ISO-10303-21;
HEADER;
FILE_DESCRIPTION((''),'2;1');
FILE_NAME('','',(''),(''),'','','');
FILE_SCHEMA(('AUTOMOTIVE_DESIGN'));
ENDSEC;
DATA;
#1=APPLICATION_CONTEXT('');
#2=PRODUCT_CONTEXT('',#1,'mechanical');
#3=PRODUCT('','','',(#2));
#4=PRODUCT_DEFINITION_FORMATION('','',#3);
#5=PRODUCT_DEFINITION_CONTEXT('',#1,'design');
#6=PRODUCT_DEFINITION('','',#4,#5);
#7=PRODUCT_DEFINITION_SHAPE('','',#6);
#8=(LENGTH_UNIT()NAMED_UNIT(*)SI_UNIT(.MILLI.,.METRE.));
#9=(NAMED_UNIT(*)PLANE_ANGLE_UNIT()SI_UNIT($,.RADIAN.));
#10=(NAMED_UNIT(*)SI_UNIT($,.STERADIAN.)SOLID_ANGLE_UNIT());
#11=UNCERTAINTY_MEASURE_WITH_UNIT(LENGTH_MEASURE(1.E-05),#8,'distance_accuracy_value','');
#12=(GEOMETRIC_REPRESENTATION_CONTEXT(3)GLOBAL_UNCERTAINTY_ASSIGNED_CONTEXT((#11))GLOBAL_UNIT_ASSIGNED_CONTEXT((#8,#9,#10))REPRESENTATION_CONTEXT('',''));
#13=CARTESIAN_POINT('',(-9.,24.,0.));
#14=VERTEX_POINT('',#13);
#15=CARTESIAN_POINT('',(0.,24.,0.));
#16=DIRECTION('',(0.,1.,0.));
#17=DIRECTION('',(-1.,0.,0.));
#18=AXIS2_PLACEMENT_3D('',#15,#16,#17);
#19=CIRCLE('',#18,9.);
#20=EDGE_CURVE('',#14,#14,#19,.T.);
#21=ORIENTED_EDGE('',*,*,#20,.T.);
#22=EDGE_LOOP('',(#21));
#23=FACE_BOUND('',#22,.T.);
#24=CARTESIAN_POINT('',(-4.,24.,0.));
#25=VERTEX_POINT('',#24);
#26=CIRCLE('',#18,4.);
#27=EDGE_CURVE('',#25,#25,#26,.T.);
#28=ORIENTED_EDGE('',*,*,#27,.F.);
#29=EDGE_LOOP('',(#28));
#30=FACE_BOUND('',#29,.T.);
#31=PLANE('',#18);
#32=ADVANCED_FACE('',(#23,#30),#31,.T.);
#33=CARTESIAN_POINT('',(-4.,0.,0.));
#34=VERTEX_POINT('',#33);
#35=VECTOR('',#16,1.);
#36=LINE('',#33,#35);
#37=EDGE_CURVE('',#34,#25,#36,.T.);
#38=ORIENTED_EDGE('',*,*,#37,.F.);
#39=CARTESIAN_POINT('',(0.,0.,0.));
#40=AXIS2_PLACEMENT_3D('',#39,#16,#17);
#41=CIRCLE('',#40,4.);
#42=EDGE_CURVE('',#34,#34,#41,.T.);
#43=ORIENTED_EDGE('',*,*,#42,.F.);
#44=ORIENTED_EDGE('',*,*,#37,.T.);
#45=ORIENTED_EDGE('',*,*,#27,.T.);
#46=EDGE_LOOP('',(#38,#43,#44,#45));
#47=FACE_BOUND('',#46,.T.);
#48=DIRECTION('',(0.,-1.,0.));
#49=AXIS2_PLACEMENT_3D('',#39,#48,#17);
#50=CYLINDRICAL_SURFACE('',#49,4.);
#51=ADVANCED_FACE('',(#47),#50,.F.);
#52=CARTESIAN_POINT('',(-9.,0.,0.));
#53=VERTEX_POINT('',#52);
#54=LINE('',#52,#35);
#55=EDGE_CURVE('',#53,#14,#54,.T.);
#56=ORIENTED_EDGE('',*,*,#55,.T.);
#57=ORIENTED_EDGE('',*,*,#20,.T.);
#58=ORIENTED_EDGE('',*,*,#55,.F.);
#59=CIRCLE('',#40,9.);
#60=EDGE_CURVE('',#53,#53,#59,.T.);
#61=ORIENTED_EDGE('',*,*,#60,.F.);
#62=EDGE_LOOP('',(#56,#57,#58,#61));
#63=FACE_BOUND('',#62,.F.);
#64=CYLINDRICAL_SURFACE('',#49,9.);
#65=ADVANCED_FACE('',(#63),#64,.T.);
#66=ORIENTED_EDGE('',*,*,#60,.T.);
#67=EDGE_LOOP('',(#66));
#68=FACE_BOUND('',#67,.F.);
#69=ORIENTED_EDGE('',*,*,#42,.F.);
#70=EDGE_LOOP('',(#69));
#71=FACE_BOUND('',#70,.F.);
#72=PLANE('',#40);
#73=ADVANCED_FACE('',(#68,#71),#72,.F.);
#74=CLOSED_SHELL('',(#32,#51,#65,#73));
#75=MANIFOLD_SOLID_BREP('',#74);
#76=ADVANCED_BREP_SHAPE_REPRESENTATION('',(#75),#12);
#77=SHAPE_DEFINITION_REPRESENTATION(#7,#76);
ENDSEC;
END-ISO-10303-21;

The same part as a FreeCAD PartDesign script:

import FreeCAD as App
import Part
import Sketcher

V = App.Vector
Q = App.Units.Quantity

doc = App.newDocument("Part")
params = doc.addObject("Spreadsheet::Sheet", "Params")
for row, (alias, value) in enumerate([
    ("sketch1_diameter", "18 mm"),
    ("sketch1_diameter2", "8 mm"),
    ("pad1_length", "24 mm"),
], start=1):
    params.set(f"A{row}", alias)
    params.set(f"B{row}", "=" + value)
    params.setAlias(f"B{row}", alias)

body = doc.addObject("PartDesign::Body", "Body")

# Sketch on XZ plane
sketch1 = body.newObject("Sketcher::SketchObject", "Sketch")
sketch1.AttachmentSupport = (doc.getObject("XZ_Plane"), [""])
sketch1.MapMode = "FlatFace"
sketch1.addGeometry(Part.Circle(V(0, 0, 0), V(0, 0, 1), 9), False)
sketch1.addGeometry(Part.Circle(V(0, 0, 0), V(0, 0, 1), 4), False)
sketch1.addConstraint(Sketcher.Constraint("Coincident", 0, 3, -1, 1))
sketch1.addConstraint(Sketcher.Constraint("Coincident", 1, 3, -1, 1))
sketch1.addConstraint(Sketcher.Constraint("Diameter", 0, Q("18 mm")))
sketch1.addConstraint(Sketcher.Constraint("Diameter", 1, Q("8 mm")))
sketch1.setExpression("Constraints[2]", "Params.sketch1_diameter")
sketch1.setExpression("Constraints[3]", "Params.sketch1_diameter2")
pad1 = body.newObject("PartDesign::Pad", "Pad")
pad1.Profile = sketch1
pad1.setExpression("Length", "Params.pad1_length")
pad1.Reversed = True

doc.recompute()
